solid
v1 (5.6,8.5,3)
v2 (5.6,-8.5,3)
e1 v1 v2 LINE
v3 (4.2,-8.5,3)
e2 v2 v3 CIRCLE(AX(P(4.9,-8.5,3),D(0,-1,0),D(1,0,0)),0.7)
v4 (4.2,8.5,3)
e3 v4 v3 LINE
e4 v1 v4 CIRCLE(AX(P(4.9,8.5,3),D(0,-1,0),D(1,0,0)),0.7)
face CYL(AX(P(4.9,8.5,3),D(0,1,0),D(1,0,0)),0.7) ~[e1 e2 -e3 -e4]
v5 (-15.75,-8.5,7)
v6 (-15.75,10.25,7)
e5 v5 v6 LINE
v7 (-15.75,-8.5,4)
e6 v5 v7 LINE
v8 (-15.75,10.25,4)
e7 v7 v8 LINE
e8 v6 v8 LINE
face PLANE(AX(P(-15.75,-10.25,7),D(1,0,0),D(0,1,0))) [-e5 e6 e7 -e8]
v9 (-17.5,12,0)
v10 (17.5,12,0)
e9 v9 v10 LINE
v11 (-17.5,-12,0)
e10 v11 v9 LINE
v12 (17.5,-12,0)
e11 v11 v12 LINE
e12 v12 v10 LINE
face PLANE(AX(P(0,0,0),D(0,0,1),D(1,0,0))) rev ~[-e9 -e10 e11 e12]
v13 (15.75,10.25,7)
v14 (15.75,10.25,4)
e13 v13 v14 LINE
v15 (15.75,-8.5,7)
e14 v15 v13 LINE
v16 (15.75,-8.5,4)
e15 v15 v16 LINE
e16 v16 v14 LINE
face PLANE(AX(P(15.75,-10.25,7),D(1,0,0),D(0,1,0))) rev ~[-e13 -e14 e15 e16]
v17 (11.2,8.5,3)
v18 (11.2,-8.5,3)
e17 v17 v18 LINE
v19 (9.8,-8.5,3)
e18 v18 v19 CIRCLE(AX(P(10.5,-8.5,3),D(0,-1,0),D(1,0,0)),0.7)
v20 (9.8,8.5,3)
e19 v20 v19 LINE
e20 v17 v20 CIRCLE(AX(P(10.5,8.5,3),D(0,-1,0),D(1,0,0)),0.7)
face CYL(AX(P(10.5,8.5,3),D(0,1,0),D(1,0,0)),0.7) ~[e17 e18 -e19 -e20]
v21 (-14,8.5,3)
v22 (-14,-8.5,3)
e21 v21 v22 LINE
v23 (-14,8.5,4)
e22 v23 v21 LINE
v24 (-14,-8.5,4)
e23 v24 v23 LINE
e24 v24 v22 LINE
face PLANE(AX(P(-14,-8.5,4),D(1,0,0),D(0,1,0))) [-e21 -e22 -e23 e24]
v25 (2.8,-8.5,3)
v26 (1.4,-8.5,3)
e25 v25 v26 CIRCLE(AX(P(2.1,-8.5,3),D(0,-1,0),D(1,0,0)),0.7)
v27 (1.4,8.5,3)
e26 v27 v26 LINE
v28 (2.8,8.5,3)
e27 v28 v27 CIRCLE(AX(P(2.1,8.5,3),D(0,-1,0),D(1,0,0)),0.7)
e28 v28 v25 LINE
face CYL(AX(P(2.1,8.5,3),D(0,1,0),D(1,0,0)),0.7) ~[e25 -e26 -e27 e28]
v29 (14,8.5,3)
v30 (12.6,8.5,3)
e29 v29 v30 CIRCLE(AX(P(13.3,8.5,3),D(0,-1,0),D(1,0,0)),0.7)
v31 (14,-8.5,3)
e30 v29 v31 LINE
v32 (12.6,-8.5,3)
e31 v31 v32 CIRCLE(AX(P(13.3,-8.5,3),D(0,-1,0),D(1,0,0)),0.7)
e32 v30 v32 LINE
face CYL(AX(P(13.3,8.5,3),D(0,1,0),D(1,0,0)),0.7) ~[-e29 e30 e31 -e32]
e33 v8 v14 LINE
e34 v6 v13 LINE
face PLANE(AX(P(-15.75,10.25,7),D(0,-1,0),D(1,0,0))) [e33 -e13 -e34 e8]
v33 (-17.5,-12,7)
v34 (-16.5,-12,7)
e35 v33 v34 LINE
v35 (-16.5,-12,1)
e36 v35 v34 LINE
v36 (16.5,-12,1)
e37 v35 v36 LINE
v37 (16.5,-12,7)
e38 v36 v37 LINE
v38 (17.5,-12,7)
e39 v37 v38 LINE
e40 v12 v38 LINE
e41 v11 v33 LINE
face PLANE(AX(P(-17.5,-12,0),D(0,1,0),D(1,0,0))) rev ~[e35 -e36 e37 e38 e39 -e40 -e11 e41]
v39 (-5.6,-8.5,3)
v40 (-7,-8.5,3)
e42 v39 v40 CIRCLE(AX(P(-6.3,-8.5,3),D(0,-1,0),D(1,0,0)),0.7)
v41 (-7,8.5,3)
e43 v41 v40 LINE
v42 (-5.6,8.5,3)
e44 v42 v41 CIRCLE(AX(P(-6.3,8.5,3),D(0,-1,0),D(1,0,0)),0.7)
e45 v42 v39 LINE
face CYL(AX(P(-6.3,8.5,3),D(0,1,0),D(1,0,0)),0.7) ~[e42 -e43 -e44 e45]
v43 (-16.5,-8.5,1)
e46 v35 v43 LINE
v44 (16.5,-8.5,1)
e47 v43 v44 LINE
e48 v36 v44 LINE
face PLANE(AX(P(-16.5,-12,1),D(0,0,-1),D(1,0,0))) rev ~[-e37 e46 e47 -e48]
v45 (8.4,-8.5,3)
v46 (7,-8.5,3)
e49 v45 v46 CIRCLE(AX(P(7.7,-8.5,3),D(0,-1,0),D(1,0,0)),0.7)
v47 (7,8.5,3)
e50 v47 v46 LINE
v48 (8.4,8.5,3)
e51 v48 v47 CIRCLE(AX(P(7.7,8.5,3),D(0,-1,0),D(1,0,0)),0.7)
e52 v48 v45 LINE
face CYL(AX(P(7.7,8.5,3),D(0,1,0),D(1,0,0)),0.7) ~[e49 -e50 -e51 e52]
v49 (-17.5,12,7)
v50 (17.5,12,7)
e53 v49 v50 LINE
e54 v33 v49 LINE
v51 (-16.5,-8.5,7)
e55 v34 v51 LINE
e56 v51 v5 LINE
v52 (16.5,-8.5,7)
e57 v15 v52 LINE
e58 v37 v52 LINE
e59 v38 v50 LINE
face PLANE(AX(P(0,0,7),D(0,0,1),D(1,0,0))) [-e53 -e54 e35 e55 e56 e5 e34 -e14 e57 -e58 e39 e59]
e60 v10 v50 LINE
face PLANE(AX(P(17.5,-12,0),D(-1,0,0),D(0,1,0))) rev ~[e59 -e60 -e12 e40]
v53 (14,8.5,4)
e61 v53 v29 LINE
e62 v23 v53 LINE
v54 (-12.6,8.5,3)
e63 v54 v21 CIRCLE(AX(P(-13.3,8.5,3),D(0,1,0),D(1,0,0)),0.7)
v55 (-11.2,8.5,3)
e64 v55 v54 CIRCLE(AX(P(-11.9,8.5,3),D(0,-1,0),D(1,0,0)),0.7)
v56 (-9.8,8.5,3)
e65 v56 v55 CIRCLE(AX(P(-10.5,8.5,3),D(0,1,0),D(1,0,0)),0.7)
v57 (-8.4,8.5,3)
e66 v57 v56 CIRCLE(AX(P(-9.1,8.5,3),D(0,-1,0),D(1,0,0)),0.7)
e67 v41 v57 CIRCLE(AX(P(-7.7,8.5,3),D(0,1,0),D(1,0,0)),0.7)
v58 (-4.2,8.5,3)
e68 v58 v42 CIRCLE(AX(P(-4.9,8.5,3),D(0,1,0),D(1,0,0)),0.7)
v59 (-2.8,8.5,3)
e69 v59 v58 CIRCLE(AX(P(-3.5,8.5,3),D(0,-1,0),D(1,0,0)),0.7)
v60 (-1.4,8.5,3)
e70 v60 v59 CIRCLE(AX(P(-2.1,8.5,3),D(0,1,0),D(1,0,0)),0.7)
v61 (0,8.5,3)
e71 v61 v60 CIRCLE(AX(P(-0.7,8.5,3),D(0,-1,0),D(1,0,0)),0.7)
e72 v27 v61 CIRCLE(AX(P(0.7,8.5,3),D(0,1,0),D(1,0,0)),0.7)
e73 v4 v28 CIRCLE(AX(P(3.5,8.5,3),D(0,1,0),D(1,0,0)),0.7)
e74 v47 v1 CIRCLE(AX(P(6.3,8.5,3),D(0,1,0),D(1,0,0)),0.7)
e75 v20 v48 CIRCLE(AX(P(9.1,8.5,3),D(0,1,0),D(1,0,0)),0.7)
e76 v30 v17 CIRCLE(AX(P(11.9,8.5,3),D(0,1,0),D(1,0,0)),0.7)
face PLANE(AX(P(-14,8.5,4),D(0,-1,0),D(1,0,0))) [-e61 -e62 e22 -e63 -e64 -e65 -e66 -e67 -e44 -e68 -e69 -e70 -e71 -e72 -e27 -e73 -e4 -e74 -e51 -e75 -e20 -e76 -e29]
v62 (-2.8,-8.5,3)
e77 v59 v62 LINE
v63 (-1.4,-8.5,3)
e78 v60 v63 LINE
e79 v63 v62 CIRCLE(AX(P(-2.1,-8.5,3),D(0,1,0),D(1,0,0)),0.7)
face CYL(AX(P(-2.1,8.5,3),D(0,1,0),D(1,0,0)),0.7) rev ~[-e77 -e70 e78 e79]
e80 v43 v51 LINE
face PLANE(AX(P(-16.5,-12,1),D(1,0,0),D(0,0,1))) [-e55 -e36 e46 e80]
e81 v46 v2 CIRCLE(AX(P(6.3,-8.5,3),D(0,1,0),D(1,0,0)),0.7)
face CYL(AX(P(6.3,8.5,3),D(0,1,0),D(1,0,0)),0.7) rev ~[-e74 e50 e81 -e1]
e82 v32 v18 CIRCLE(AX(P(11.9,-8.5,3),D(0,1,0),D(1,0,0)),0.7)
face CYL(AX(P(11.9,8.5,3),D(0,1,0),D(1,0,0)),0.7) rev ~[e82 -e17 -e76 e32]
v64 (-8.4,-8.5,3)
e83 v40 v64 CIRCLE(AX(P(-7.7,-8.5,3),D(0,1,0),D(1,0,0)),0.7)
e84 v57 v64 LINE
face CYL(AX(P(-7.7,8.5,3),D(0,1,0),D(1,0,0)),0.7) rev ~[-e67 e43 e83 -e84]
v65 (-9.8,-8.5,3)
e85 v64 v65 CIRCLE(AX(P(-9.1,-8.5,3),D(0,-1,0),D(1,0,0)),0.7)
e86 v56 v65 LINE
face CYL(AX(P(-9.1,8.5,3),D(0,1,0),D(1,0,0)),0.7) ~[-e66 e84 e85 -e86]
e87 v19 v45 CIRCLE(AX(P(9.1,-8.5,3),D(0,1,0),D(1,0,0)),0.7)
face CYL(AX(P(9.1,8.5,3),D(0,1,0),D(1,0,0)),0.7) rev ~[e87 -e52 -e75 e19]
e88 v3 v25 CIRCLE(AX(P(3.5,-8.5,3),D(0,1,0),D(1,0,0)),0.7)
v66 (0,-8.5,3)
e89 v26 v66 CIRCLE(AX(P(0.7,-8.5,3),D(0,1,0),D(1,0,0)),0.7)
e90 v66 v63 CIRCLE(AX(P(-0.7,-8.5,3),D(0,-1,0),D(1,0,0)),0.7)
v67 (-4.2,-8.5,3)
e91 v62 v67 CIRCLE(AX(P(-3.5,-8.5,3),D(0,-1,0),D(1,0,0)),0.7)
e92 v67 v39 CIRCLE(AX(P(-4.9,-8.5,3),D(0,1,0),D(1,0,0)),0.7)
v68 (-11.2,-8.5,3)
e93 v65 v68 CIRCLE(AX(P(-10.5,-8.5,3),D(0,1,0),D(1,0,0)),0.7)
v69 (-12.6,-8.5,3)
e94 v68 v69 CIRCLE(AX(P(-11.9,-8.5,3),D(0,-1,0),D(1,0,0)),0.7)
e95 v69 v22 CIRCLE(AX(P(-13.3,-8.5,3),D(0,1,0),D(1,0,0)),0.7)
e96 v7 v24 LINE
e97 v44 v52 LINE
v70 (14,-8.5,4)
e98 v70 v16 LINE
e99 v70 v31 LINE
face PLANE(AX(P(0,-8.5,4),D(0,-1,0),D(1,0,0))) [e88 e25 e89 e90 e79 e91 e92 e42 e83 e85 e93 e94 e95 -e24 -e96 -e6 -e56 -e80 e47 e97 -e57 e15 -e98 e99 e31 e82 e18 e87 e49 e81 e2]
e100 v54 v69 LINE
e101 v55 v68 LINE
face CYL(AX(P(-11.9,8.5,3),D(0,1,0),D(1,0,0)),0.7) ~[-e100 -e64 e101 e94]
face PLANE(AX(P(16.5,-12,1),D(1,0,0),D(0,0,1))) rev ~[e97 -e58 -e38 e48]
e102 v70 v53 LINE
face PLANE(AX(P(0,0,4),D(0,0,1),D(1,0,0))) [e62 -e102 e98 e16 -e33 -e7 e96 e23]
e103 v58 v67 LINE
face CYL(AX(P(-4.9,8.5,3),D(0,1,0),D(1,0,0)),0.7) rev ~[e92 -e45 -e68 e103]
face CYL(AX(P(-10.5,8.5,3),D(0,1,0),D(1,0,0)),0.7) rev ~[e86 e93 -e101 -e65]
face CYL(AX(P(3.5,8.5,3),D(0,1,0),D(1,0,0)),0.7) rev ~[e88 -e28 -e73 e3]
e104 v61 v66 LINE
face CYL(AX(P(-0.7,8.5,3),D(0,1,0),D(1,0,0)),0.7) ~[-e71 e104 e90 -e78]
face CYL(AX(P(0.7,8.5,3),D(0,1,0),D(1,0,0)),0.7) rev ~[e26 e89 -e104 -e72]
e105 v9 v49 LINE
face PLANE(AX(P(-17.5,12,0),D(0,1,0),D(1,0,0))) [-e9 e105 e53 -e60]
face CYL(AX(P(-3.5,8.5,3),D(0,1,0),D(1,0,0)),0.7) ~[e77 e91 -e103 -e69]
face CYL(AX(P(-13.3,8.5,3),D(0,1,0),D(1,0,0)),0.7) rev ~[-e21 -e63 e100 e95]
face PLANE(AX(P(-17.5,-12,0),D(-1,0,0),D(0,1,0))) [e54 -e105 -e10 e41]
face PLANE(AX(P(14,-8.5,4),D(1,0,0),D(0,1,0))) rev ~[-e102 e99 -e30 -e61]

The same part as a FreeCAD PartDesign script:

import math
import FreeCAD as App
import Part
import Sketcher

V = App.Vector
Q = App.Units.Quantity


def add_polygon(sketch, points):
    """Adds a closed chain of lines whose ends are joined by coincident constraints."""
    first, n = sketch.GeometryCount, len(points)
    for a, b in zip(points, points[1:] + points[:1]):
        sketch.addGeometry(Part.LineSegment(App.Vector(*a, 0), App.Vector(*b, 0)), False)
    for i in range(n):
        sketch.addConstraint(Sketcher.Constraint("Coincident", first + i, 2, first + (i + 1) % n, 1))

doc = App.newDocument("Part")
params = doc.addObject("Spreadsheet::Sheet", "Params")
for row, (alias, value) in enumerate([
    ("sketch1_width", "35 mm"),
    ("sketch1_height", "24 mm"),
    ("pad1_length", "7 mm"),
    ("sketch2_width", "31.5 mm"),
    ("sketch2_height", "20.5 mm"),
    ("pocket1_length", "3 mm"),
    ("sketch3_width", "28 mm"),
    ("sketch3_height", "17 mm"),
    ("pocket2_length", "2 mm"),
    ("sketch4_radius", "0.7 mm"),
    ("sketch4_width", "30 mm"),
    ("sketch4_height", "2 mm"),
    ("pad2_length", "17 mm"),
    ("sketch5_width", "33 mm"),
    ("sketch5_height", "6 mm"),
    ("pocket3_length", "3.5 mm"),
], start=1):
    params.set(f"A{row}", alias)
    params.set(f"B{row}", "=" + value)
    params.setAlias(f"B{row}", alias)

body = doc.addObject("PartDesign::Body", "Body")

# Sketch on XY plane
sketch1 = body.newObject("Sketcher::SketchObject", "Sketch")
sketch1.AttachmentSupport = (doc.getObject("XY_Plane"), [""])
sketch1.MapMode = "FlatFace"
add_polygon(sketch1, [(-18, 12), (-18, -12), (18, -12), (18, 12)])  # lines 0-3
sketch1.addConstraint(Sketcher.Constraint("Vertical", 0))
sketch1.addConstraint(Sketcher.Constraint("Horizontal", 1))
sketch1.addConstraint(Sketcher.Constraint("Vertical", 2))
sketch1.addConstraint(Sketcher.Constraint("Horizontal", 3))
sketch1.addConstraint(Sketcher.Constraint("Symmetric", 0, 2, 2, 2, -1, 1))
sketch1.addConstraint(Sketcher.Constraint("DistanceX", 1, 1, 1, 2, Q("35 mm")))
sketch1.addConstraint(Sketcher.Constraint("DistanceY", 0, 2, 0, 1, Q("24 mm")))
sketch1.setExpression("Constraints[9]", "Params.sketch1_width")
sketch1.setExpression("Constraints[10]", "Params.sketch1_height")
pad1 = body.newObject("PartDesign::Pad", "Pad")
pad1.Profile = sketch1
pad1.setExpression("Length", "Params.pad1_length")

# Sketch on XY plane
sketch2 = body.newObject("Sketcher::SketchObject", "Sketch001")
sketch2.AttachmentSupport = (doc.getObject("XY_Plane"), [""])
sketch2.MapMode = "FlatFace"
sketch2.AttachmentOffset = App.Placement(V(0, 0, 7), App.Rotation())
add_polygon(sketch2, [(-16, 10), (-16, -10), (16, -10), (16, 10)])  # lines 0-3
sketch2.addConstraint(Sketcher.Constraint("Vertical", 0))
sketch2.addConstraint(Sketcher.Constraint("Horizontal", 1))
sketch2.addConstraint(Sketcher.Constraint("Vertical", 2))
sketch2.addConstraint(Sketcher.Constraint("Horizontal", 3))
sketch2.addConstraint(Sketcher.Constraint("Symmetric", 0, 2, 2, 2, -1, 1))
sketch2.addConstraint(Sketcher.Constraint("DistanceX", 1, 1, 1, 2, Q("31.5 mm")))
sketch2.addConstraint(Sketcher.Constraint("DistanceY", 0, 2, 0, 1, Q("20.5 mm")))
sketch2.setExpression("Constraints[9]", "Params.sketch2_width")
sketch2.setExpression("Constraints[10]", "Params.sketch2_height")
pocket1 = body.newObject("PartDesign::Pocket", "Pocket")
pocket1.Profile = sketch2
pocket1.setExpression("Length", "Params.pocket1_length")

# Sketch on XY plane
sketch3 = body.newObject("Sketcher::SketchObject", "Sketch002")
sketch3.AttachmentSupport = (doc.getObject("XY_Plane"), [""])
sketch3.MapMode = "FlatFace"
sketch3.AttachmentOffset = App.Placement(V(0, 0, 4), App.Rotation())
add_polygon(sketch3, [(-14, 8), (-14, -8), (14, -8), (14, 8)])  # lines 0-3
sketch3.addConstraint(Sketcher.Constraint("Vertical", 0))
sketch3.addConstraint(Sketcher.Constraint("Horizontal", 1))
sketch3.addConstraint(Sketcher.Constraint("Vertical", 2))
sketch3.addConstraint(Sketcher.Constraint("Horizontal", 3))
sketch3.addConstraint(Sketcher.Constraint("Symmetric", 0, 2, 2, 2, -1, 1))
sketch3.addConstraint(Sketcher.Constraint("DistanceX", 1, 1, 1, 2, Q("28 mm")))
sketch3.addConstraint(Sketcher.Constraint("DistanceY", 0, 2, 0, 1, Q("17 mm")))
sketch3.setExpression("Constraints[9]", "Params.sketch3_width")
sketch3.setExpression("Constraints[10]", "Params.sketch3_height")
pocket2 = body.newObject("PartDesign::Pocket", "Pocket001")
pocket2.Profile = sketch3
pocket2.setExpression("Length", "Params.pocket2_length")

# Sketch on XZ plane
sketch4 = body.newObject("Sketcher::SketchObject", "Sketch003")
sketch4.AttachmentSupport = (doc.getObject("XZ_Plane"), [""])
sketch4.MapMode = "FlatFace"
sketch4.AttachmentOffset = App.Placement(V(0, 0, -8.5), App.Rotation())
sketch4.addGeometry(Part.LineSegment(V(-15, 3, 0), V(-15, 1, 0)), False)
sketch4.addGeometry(Part.LineSegment(V(-15, 1, 0), V(15, 1, 0)), False)
sketch4.addGeometry(Part.LineSegment(V(15, 1, 0), V(15, 3, 0)), False)
sketch4.addGeometry(Part.LineSegment(V(15, 3, 0), V(14, 3, 0)), False)
sketch4.addGeometry(Part.ArcOfCircle(Part.Circle(V(13.3, 3, 0), V(0, 0, 1), 0.7), math.radians(0), math.radians(180)), False)
sketch4.addGeometry(Part.ArcOfCircle(Part.Circle(V(11.9, 3, 0), V(0, 0, 1), 0.7), math.radians(180), math.radians(360)), False)
sketch4.addGeometry(Part.ArcOfCircle(Part.Circle(V(10.5, 3, 0), V(0, 0, 1), 0.7), math.radians(0), math.radians(180)), False)
sketch4.addGeometry(Part.ArcOfCircle(Part.Circle(V(9.1, 3, 0), V(0, 0, 1), 0.7), math.radians(180), math.radians(360)), False)
sketch4.addGeometry(Part.ArcOfCircle(Part.Circle(V(7.7, 3, 0), V(0, 0, 1), 0.7), math.radians(0), math.radians(180)), False)
sketch4.addGeometry(Part.ArcOfCircle(Part.Circle(V(6.3, 3, 0), V(0, 0, 1), 0.7), math.radians(180), math.radians(360)), False)
sketch4.addGeometry(Part.ArcOfCircle(Part.Circle(V(4.9, 3, 0), V(0, 0, 1), 0.7), math.radians(0), math.radians(180)), False)
sketch4.addGeometry(Part.ArcOfCircle(Part.Circle(V(3.5, 3, 0), V(0, 0, 1), 0.7), math.radians(180), math.radians(360)), False)
sketch4.addGeometry(Part.ArcOfCircle(Part.Circle(V(2.1, 3, 0), V(0, 0, 1), 0.7), math.radians(0), math.radians(180)), False)
sketch4.addGeometry(Part.ArcOfCircle(Part.Circle(V(0.7, 3, 0), V(0, 0, 1), 0.7), math.radians(180), math.radians(360)), False)
sketch4.addGeometry(Part.ArcOfCircle(Part.Circle(V(-0.7, 3, 0), V(0, 0, 1), 0.7), math.radians(0), math.radians(180)), False)
sketch4.addGeometry(Part.ArcOfCircle(Part.Circle(V(-2.1, 3, 0), V(0, 0, 1), 0.7), math.radians(180), math.radians(360)), False)
sketch4.addGeometry(Part.ArcOfCircle(Part.Circle(V(-3.5, 3, 0), V(0, 0, 1), 0.7), math.radians(0), math.radians(180)), False)
sketch4.addGeometry(Part.ArcOfCircle(Part.Circle(V(-4.9, 3, 0), V(0, 0, 1), 0.7), math.radians(180), math.radians(360)), False)
sketch4.addGeometry(Part.ArcOfCircle(Part.Circle(V(-6.3, 3, 0), V(0, 0, 1), 0.7), math.radians(0), math.radians(180)), False)
sketch4.addGeometry(Part.ArcOfCircle(Part.Circle(V(-7.7, 3, 0), V(0, 0, 1), 0.7), math.radians(180), math.radians(360)), False)
sketch4.addGeometry(Part.ArcOfCircle(Part.Circle(V(-9.1, 3, 0), V(0, 0, 1), 0.7), math.radians(0), math.radians(180)), False)
sketch4.addGeometry(Part.ArcOfCircle(Part.Circle(V(-10.5, 3, 0), V(0, 0, 1), 0.7), math.radians(180), math.radians(360)), False)
sketch4.addGeometry(Part.ArcOfCircle(Part.Circle(V(-11.9, 3, 0), V(0, 0, 1), 0.7), math.radians(0), math.radians(180)), False)
sketch4.addGeometry(Part.ArcOfCircle(Part.Circle(V(-13.3, 3, 0), V(0, 0, 1), 0.7), math.radians(180), math.radians(360)), False)
sketch4.addGeometry(Part.LineSegment(V(-14, 3, 0), V(-15, 3, 0)), False)
sketch4.addConstraint(Sketcher.Constraint("Coincident", 0, 2, 1, 1))
sketch4.addConstraint(Sketcher.Constraint("Coincident", 1, 2, 2, 1))
sketch4.addConstraint(Sketcher.Constraint("Coincident", 2, 2, 3, 1))
sketch4.addConstraint(Sketcher.Constraint("Coincident", 3, 2, 4, 1))
sketch4.addConstraint(Sketcher.Constraint("Tangent", 4, 2, 5, 2))
sketch4.addConstraint(Sketcher.Constraint("Tangent", 5, 1, 6, 1))
sketch4.addConstraint(Sketcher.Constraint("Tangent", 6, 2, 7, 2))
sketch4.addConstraint(Sketcher.Constraint("Tangent", 7, 1, 8, 1))
sketch4.addConstraint(Sketcher.Constraint("Tangent", 8, 2, 9, 2))
sketch4.addConstraint(Sketcher.Constraint("Tangent", 9, 1, 10, 1))
sketch4.addConstraint(Sketcher.Constraint("Tangent", 10, 2, 11, 2))
sketch4.addConstraint(Sketcher.Constraint("Tangent", 11, 1, 12, 1))
sketch4.addConstraint(Sketcher.Constraint("Tangent", 12, 2, 13, 2))
sketch4.addConstraint(Sketcher.Constraint("Tangent", 13, 1, 14, 1))
sketch4.addConstraint(Sketcher.Constraint("Tangent", 14, 2, 15, 2))
sketch4.addConstraint(Sketcher.Constraint("Tangent", 15, 1, 16, 1))
sketch4.addConstraint(Sketcher.Constraint("Tangent", 16, 2, 17, 2))
sketch4.addConstraint(Sketcher.Constraint("Tangent", 17, 1, 18, 1))
sketch4.addConstraint(Sketcher.Constraint("Tangent", 18, 2, 19, 2))
sketch4.addConstraint(Sketcher.Constraint("Tangent", 19, 1, 20, 1))
sketch4.addConstraint(Sketcher.Constraint("Tangent", 20, 2, 21, 2))
sketch4.addConstraint(Sketcher.Constraint("Tangent", 21, 1, 22, 1))
sketch4.addConstraint(Sketcher.Constraint("Tangent", 22, 2, 23, 2))
sketch4.addConstraint(Sketcher.Constraint("Coincident", 23, 1, 24, 1))
sketch4.addConstraint(Sketcher.Constraint("Coincident", 24, 2, 0, 1))
sketch4.addConstraint(Sketcher.Constraint("Vertical", 0))
sketch4.addConstraint(Sketcher.Constraint("Horizontal", 1))
sketch4.addConstraint(Sketcher.Constraint("Vertical", 2))
sketch4.addConstraint(Sketcher.Constraint("Horizontal", 3))
sketch4.addConstraint(Sketcher.Constraint("Horizontal", 24))
sketch4.addConstraint(Sketcher.Constraint("Equal", 4, 5))
sketch4.addConstraint(Sketcher.Constraint("Equal", 5, 6))
sketch4.addConstraint(Sketcher.Constraint("Equal", 6, 7))
sketch4.addConstraint(Sketcher.Constraint("Equal", 7, 8))
sketch4.addConstraint(Sketcher.Constraint("Equal", 8, 9))
sketch4.addConstraint(Sketcher.Constraint("Equal", 9, 10))
sketch4.addConstraint(Sketcher.Constraint("Equal", 10, 11))
sketch4.addConstraint(Sketcher.Constraint("Equal", 11, 12))
sketch4.addConstraint(Sketcher.Constraint("Equal", 12, 13))
sketch4.addConstraint(Sketcher.Constraint("Equal", 13, 14))
sketch4.addConstraint(Sketcher.Constraint("Equal", 14, 15))
sketch4.addConstraint(Sketcher.Constraint("Equal", 15, 16))
sketch4.addConstraint(Sketcher.Constraint("Equal", 16, 17))
sketch4.addConstraint(Sketcher.Constraint("Equal", 17, 18))
sketch4.addConstraint(Sketcher.Constraint("Equal", 18, 19))
sketch4.addConstraint(Sketcher.Constraint("Equal", 19, 20))
sketch4.addConstraint(Sketcher.Constraint("Equal", 20, 21))
sketch4.addConstraint(Sketcher.Constraint("Equal", 21, 22))
sketch4.addConstraint(Sketcher.Constraint("Equal", 22, 23))
sketch4.addConstraint(Sketcher.Constraint("Symmetric", 13, 3, 14, 3, -2))
sketch4.addConstraint(Sketcher.Constraint("Symmetric", 2, 2, 24, 2, -2))
sketch4.addConstraint(Sketcher.Constraint("Horizontal", 4, 3, 5, 3))
sketch4.addConstraint(Sketcher.Constraint("Horizontal", 5, 3, 6, 3))
sketch4.addConstraint(Sketcher.Constraint("Horizontal", 6, 3, 7, 3))
sketch4.addConstraint(Sketcher.Constraint("Horizontal", 7, 3, 8, 3))
sketch4.addConstraint(Sketcher.Constraint("Horizontal", 8, 3, 9, 3))
sketch4.addConstraint(Sketcher.Constraint("Horizontal", 9, 3, 10, 3))
sketch4.addConstraint(Sketcher.Constraint("Horizontal", 10, 3, 11, 3))
sketch4.addConstraint(Sketcher.Constraint("Horizontal", 11, 3, 12, 3))
sketch4.addConstraint(Sketcher.Constraint("Horizontal", 12, 3, 13, 3))
sketch4.addConstraint(Sketcher.Constraint("Horizontal", 14, 3, 15, 3))
sketch4.addConstraint(Sketcher.Constraint("Horizontal", 15, 3, 16, 3))
sketch4.addConstraint(Sketcher.Constraint("Horizontal", 16, 3, 17, 3))
sketch4.addConstraint(Sketcher.Constraint("Horizontal", 17, 3, 18, 3))
sketch4.addConstraint(Sketcher.Constraint("Horizontal", 18, 3, 19, 3))
sketch4.addConstraint(Sketcher.Constraint("Horizontal", 19, 3, 20, 3))
sketch4.addConstraint(Sketcher.Constraint("Horizontal", 20, 3, 21, 3))
sketch4.addConstraint(Sketcher.Constraint("Horizontal", 21, 3, 22, 3))
sketch4.addConstraint(Sketcher.Constraint("Horizontal", 22, 3, 23, 3))
sketch4.addConstraint(Sketcher.Constraint("Horizontal", 23, 3, 2, 2))
sketch4.addConstraint(Sketcher.Constraint("Radius", 4, Q("0.7 mm")))
sketch4.addConstraint(Sketcher.Constraint("DistanceX", 1, 1, 1, 2, Q("30 mm")))
sketch4.addConstraint(Sketcher.Constraint("DistanceY", 0, 2, 0, 1, Q("2 mm")))
sketch4.addConstraint(Sketcher.Constraint("DistanceY", -1, 1, 4, 3, Q("3 mm")))
sketch4.setExpression("Constraints[70]", "Params.sketch4_radius")
sketch4.setExpression("Constraints[71]", "Params.sketch4_width")
sketch4.setExpression("Constraints[72]", "Params.sketch4_height")
pad2 = body.newObject("PartDesign::Pad", "Pad001")
pad2.Profile = sketch4
pad2.setExpression("Length", "Params.pad2_length")

# Sketch on XZ plane
sketch5 = body.newObject("Sketcher::SketchObject", "Sketch004")
sketch5.AttachmentSupport = (doc.getObject("XZ_Plane"), [""])
sketch5.MapMode = "FlatFace"
sketch5.AttachmentOffset = App.Placement(V(0, 0, 12), App.Rotation())
add_polygon(sketch5, [(-16, 7), (-16, 1), (16, 1), (16, 7)])  # lines 0-3
sketch5.addConstraint(Sketcher.Constraint("Vertical", 0))
sketch5.addConstraint(Sketcher.Constraint("Horizontal", 1))
sketch5.addConstraint(Sketcher.Constraint("Vertical", 2))
sketch5.addConstraint(Sketcher.Constraint("Horizontal", 3))
sketch5.addConstraint(Sketcher.Constraint("DistanceX", 1, 1, 1, 2, Q("33 mm")))
sketch5.addConstraint(Sketcher.Constraint("DistanceY", 0, 2, 0, 1, Q("6 mm")))
sketch5.addConstraint(Sketcher.Constraint("DistanceY", -1, 1, 0, 2, Q("1 mm")))
sketch5.addConstraint(Sketcher.Constraint("DistanceX", 0, 2, -1, 1, Q("16.5 mm")))
sketch5.setExpression("Constraints[8]", "Params.sketch5_width")
sketch5.setExpression("Constraints[9]", "Params.sketch5_height")
pocket3 = body.newObject("PartDesign::Pocket", "Pocket002")
pocket3.Profile = sketch5
pocket3.setExpression("Length", "Params.pocket3_length")

doc.recompute()
